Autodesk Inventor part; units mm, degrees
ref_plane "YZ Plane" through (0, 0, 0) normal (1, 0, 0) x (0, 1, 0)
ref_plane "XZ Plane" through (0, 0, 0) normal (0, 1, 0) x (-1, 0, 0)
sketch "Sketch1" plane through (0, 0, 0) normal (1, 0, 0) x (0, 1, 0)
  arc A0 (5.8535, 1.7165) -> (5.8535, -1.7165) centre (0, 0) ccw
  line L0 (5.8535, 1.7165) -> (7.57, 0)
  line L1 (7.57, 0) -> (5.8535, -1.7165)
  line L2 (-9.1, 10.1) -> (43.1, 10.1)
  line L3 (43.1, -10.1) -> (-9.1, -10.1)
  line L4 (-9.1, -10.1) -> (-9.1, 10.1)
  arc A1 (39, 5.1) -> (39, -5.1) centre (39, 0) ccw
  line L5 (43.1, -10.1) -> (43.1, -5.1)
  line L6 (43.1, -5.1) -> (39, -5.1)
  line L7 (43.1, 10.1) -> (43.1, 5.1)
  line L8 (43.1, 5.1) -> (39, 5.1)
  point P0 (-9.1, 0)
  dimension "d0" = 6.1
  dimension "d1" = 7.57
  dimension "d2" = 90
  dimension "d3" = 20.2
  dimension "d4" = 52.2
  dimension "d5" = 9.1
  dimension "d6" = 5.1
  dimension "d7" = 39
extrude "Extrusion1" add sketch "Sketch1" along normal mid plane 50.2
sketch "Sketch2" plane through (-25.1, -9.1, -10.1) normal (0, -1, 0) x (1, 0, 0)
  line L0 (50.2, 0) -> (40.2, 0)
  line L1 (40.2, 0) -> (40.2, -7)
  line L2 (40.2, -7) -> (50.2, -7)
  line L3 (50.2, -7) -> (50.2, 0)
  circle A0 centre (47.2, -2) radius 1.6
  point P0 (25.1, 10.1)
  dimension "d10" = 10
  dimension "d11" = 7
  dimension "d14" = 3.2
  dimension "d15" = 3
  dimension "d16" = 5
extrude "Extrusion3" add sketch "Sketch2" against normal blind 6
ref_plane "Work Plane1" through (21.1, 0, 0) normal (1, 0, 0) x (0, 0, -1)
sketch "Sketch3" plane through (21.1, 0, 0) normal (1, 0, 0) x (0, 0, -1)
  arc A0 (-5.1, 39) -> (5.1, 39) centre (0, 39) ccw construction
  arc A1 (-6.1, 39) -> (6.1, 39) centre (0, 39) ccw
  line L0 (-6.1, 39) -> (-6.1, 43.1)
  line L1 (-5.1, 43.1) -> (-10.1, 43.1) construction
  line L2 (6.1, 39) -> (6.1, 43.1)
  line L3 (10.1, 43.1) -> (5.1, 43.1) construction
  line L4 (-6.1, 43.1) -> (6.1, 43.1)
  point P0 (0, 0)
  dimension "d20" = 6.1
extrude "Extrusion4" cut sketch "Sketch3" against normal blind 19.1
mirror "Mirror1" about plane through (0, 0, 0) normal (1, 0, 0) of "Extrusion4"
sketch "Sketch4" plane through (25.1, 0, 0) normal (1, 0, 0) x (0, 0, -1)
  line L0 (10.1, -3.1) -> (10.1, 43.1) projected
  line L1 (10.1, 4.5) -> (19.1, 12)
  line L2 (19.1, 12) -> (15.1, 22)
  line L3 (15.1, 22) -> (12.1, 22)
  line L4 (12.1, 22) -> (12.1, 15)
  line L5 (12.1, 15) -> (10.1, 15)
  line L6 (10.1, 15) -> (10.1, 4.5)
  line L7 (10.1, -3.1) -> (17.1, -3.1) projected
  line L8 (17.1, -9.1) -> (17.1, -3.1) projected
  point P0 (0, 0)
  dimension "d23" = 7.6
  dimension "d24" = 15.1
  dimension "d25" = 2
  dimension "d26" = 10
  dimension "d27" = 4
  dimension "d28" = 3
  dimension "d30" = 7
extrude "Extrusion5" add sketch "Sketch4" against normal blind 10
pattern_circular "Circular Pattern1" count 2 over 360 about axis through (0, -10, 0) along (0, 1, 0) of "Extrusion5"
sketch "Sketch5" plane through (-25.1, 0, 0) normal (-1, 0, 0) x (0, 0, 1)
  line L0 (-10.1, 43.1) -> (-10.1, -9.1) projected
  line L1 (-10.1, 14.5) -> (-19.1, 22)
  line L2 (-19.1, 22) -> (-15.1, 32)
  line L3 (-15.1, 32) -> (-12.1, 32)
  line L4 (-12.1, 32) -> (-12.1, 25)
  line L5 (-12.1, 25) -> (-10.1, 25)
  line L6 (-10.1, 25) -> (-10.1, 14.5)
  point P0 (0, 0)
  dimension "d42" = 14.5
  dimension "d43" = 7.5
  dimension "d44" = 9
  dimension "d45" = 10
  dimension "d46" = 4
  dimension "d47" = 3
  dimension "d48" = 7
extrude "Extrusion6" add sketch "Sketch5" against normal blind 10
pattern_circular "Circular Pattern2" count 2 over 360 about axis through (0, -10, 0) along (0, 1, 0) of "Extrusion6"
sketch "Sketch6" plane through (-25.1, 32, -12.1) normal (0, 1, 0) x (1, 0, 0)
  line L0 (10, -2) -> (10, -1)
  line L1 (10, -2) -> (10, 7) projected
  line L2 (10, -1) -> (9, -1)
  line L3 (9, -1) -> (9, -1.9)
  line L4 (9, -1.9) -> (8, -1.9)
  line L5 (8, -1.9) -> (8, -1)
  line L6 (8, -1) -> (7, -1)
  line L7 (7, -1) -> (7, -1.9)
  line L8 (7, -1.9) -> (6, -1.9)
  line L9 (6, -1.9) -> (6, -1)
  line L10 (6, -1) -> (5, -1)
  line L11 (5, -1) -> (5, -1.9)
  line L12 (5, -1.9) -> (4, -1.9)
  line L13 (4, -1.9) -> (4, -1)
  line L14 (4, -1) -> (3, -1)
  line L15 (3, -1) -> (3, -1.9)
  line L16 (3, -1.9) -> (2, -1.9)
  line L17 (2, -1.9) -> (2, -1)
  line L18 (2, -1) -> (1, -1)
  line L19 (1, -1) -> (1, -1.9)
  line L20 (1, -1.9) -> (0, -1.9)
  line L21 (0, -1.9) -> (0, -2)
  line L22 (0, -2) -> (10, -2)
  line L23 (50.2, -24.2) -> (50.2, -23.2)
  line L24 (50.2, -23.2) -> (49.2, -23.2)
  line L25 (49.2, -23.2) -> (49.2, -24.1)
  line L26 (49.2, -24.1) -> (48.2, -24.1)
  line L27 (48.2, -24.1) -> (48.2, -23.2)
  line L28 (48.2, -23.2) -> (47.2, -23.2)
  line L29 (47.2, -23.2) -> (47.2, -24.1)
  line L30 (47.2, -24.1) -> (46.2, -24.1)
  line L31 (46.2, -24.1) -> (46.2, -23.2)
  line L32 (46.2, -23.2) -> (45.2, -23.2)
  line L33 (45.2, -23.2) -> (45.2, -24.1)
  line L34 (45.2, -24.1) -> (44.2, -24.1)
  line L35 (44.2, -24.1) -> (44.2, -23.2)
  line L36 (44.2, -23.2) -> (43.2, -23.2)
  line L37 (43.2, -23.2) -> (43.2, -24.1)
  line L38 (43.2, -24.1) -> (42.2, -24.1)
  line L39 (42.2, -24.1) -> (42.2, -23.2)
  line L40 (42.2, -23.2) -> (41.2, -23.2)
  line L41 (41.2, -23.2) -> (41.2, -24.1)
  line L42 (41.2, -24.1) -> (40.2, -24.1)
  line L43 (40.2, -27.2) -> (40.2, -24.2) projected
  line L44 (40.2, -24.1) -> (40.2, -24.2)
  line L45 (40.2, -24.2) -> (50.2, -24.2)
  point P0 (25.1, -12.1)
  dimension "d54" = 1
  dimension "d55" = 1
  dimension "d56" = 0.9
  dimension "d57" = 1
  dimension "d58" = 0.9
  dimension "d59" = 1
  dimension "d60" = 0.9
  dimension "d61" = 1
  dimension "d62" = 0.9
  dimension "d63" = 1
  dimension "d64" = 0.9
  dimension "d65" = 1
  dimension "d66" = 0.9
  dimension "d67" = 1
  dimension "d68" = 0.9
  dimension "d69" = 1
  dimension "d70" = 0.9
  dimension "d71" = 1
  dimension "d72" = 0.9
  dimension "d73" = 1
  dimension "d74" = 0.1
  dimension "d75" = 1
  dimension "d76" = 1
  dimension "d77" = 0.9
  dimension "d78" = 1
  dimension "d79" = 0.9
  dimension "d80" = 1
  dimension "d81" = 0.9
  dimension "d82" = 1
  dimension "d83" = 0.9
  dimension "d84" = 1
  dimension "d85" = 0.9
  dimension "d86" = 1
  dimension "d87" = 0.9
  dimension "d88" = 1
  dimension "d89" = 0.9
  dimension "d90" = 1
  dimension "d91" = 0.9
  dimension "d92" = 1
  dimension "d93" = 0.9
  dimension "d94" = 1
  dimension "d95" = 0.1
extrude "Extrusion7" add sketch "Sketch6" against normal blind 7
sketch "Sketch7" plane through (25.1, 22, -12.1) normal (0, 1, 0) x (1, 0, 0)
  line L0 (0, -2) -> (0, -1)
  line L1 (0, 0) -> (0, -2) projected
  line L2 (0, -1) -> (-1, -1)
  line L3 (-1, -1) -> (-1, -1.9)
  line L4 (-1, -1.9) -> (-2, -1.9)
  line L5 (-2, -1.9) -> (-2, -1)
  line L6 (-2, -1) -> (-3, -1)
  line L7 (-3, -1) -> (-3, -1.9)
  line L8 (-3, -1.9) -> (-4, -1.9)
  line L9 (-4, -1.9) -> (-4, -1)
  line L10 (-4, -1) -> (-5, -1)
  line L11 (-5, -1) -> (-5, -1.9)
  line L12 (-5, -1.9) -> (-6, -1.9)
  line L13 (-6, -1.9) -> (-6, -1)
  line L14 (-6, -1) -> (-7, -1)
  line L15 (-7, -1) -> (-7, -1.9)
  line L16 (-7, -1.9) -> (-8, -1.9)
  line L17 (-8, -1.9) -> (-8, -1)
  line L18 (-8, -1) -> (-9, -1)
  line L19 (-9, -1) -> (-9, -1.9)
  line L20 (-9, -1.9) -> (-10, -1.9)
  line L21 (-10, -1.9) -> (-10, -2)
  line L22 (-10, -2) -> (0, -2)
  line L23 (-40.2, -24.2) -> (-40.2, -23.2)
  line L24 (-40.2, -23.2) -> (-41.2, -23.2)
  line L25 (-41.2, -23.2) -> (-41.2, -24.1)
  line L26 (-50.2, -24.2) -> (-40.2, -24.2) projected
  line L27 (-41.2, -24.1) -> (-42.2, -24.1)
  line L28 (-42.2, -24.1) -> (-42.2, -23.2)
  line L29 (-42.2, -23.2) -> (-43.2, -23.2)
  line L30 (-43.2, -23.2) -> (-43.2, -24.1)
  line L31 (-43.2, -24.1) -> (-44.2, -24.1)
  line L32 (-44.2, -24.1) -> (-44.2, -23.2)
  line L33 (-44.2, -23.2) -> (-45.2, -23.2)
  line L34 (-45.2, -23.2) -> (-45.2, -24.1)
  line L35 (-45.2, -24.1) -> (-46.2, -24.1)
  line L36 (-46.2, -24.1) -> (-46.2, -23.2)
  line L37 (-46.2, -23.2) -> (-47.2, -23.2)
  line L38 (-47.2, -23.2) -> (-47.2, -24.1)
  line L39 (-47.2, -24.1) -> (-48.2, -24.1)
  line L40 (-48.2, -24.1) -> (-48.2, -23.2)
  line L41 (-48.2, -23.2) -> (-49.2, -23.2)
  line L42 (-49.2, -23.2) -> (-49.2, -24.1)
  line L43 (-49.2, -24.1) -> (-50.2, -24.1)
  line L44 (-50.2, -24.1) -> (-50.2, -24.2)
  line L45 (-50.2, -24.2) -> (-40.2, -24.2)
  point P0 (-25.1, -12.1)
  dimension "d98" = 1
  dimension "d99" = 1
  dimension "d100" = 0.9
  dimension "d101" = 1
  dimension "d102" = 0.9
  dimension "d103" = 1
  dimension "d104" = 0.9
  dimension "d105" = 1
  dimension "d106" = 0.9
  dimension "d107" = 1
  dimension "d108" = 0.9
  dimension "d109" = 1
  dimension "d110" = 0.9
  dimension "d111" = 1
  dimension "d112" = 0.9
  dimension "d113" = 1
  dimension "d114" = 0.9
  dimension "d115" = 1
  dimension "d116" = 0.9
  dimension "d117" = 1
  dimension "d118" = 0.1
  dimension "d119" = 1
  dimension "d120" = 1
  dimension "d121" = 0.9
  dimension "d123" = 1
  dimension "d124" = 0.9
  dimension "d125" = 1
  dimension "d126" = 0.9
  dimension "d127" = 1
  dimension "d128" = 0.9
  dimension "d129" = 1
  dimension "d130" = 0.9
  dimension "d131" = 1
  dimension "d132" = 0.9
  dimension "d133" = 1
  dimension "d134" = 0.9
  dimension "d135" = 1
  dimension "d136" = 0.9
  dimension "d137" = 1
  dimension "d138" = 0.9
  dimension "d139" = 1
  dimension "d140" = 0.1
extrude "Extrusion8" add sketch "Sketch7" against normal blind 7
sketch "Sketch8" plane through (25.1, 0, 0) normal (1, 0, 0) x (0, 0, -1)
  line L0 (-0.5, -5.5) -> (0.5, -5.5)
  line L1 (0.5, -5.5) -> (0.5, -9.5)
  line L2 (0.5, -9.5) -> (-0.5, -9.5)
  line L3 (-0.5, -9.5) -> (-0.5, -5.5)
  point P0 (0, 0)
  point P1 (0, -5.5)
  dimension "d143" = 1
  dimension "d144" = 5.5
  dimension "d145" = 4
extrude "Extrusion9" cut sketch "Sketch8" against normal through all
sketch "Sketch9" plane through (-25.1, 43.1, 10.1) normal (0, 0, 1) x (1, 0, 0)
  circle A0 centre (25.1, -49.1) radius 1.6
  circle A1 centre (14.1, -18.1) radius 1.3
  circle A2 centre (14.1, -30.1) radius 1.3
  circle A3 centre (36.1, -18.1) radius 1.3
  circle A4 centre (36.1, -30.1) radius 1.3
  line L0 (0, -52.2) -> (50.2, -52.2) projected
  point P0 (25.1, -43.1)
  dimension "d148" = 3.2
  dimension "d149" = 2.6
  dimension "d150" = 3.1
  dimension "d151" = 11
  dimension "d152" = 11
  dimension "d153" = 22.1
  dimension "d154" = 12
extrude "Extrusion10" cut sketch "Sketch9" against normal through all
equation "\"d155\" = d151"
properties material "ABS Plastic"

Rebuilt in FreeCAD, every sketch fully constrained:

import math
import FreeCAD as App
import Part
import Sketcher

V = App.Vector
Q = App.Units.Quantity


def add_polygon(sketch, points):
    """Adds a closed chain of lines whose ends are joined by coincident constraints."""
    first, n = sketch.GeometryCount, len(points)
    for a, b in zip(points, points[1:] + points[:1]):
        sketch.addGeometry(Part.LineSegment(App.Vector(*a, 0), App.Vector(*b, 0)), False)
    for i in range(n):
        sketch.addConstraint(Sketcher.Constraint("Coincident", first + i, 2, first + (i + 1) % n, 1))

doc = App.newDocument("Part")
body = doc.addObject("PartDesign::Body", "Body")

# Sketch on YZ plane
sketch1 = doc.addObject("Sketcher::SketchObject", "Sketch")
body.addObject(sketch1)
sketch1.AttachmentSupport = (doc.YZ_Plane, [""])
sketch1.MapMode = "FlatFace"
sketch1.addGeometry([
    Part.LineSegment(V(43.1, 10.1, 0), V(-9.1, 10.1, 0)),  # 0
    Part.LineSegment(V(-9.1, 10.1, 0), V(-9.1, -10.1, 0)),  # 1
    Part.LineSegment(V(-9.1, -10.1, 0), V(43.1, -10.1, 0)),  # 2
    Part.LineSegment(V(43.1, -10.1, 0), V(43.1, -5.1, 0)),  # 3
    Part.LineSegment(V(43.1, -5.1, 0), V(39, -5.1, 0)),  # 4
    Part.ArcOfCircle(Part.Circle(V(39, 0, 0), V(0, 0, 1), 5.1), math.radians(90), math.radians(270)),  # 5
    Part.LineSegment(V(39, 5.1, 0), V(43.1, 5.1, 0)),  # 6
    Part.LineSegment(V(43.1, 5.1, 0), V(43.1, 10.1, 0)),  # 7
    Part.ArcOfCircle(Part.Circle(V(0, 0, 0), V(0, 0, 1), 6.1), math.radians(16), math.radians(344)),  # 8
    Part.LineSegment(V(5.9, 1.7, 0), V(7.6, 0, 0)),  # 9
    Part.LineSegment(V(7.6, 0, 0), V(5.9, -1.7, 0)),  # 10
], False)
sketch1.addConstraint([
    Sketcher.Constraint("Coincident", 0, 2, 1, 1),
    Sketcher.Constraint("Coincident", 1, 2, 2, 1),
    Sketcher.Constraint("Coincident", 2, 2, 3, 1),
    Sketcher.Constraint("Coincident", 3, 2, 4, 1),
    Sketcher.Constraint("Tangent", 4, 2, 5, 2),
    Sketcher.Constraint("Tangent", 5, 1, 6, 1),
    Sketcher.Constraint("Coincident", 6, 2, 7, 1),
    Sketcher.Constraint("Coincident", 7, 2, 0, 1),
    Sketcher.Constraint("Coincident", 8, 1, 9, 1),
    Sketcher.Constraint("Coincident", 9, 2, 10, 1),
    Sketcher.Constraint("Coincident", 10, 2, 8, 2),
    Sketcher.Constraint("Horizontal", 0),
    Sketcher.Constraint("Vertical", 1),
    Sketcher.Constraint("Horizontal", 2),
    Sketcher.Constraint("Vertical", 3),
    Sketcher.Constraint("Horizontal", 4),
    Sketcher.Constraint("Horizontal", 6),
    Sketcher.Constraint("Vertical", 7),
    Sketcher.Constraint("Coincident", 8, 3, -1, 1),
    Sketcher.Constraint("Symmetric", 3, 2, 6, 2, -1),
    Sketcher.Constraint("PointOnObject", 9, 2, -1),
    Sketcher.Constraint("Perpendicular", 9, 10),
    Sketcher.Constraint("Vertical", 8, 1, 10, 2),
    Sketcher.Constraint("Equal", 3, 7),
    Sketcher.Constraint("Radius", 5, Q("5.1 mm")),
    Sketcher.Constraint("Radius", 8, Q("6.1 mm")),
    Sketcher.Constraint("DistanceX", 0, 2, 0, 1, Q("52.2 mm")),
    Sketcher.Constraint("DistanceY", 1, 2, 1, 1, Q("20.2 mm")),
    Sketcher.Constraint("DistanceX", -1, 1, 5, 3, Q("39 mm")),
    Sketcher.Constraint("DistanceX", 0, 2, -1, 1, Q("9.1 mm")),
    Sketcher.Constraint("DistanceX", -1, 1, 9, 2, Q("7.57 mm")),
])
pad1 = doc.addObject("PartDesign::Pad", "Pad")
body.addObject(pad1)
pad1.Profile = sketch1
pad1.Length = 50.2
pad1.Midplane = True

# Sketch on XZ plane
sketch2 = doc.addObject("Sketcher::SketchObject", "Sketch001")
body.addObject(sketch2)
sketch2.AttachmentSupport = (doc.XZ_Plane, [""])
sketch2.MapMode = "FlatFace"
sketch2.AttachmentOffset = App.Placement(V(0, 0, 9.1), App.Rotation())
add_polygon(sketch2, [(25.1, -17.1), (25.1, -10.1), (15.1, -10.1), (15.1, -17.1)])  # lines 0-3
sketch2.addGeometry(Part.Circle(V(22.1, -12.1, 0), V(0, 0, 1), 1.6), False)  # 4
sketch2.addConstraint([
    Sketcher.Constraint("Vertical", 0),
    Sketcher.Constraint("Horizontal", 1),
    Sketcher.Constraint("Vertical", 2),
    Sketcher.Constraint("Horizontal", 3),
    Sketcher.Constraint("Diameter", 4, Q("3.2 mm")),
    Sketcher.Constraint("DistanceX", 1, 2, 1, 1, Q("10 mm")),
    Sketcher.Constraint("DistanceY", 0, 1, 0, 2, Q("7 mm")),
    Sketcher.Constraint("DistanceX", 4, 3, 0, 2, Q("3 mm")),
    Sketcher.Constraint("DistanceY", 2, 2, 4, 3, Q("5 mm")),
    Sketcher.Constraint("DistanceX", -1, 1, 4, 3, Q("22.1 mm")),
    Sketcher.Constraint("DistanceY", 4, 3, -1, 1, Q("12.1 mm")),
])
pad2 = doc.addObject("PartDesign::Pad", "Pad001")
body.addObject(pad2)
pad2.Profile = sketch2
pad2.Length = 6
pad2.Reversed = True

# Sketch on YZ plane
sketch3 = doc.addObject("Sketcher::SketchObject", "Sketch002")
body.addObject(sketch3)
sketch3.AttachmentSupport = (doc.YZ_Plane, [""])
sketch3.MapMode = "FlatFace"
sketch3.AttachmentOffset = App.Placement(V(0, 0, 21.1), App.Rotation())
sketch3.addGeometry([
    Part.LineSegment(V(43.1, 6.1, 0), V(39, 6.1, 0)),
    Part.ArcOfCircle(Part.Circle(V(39, 0, 0), V(0, 0, 1), 6.1), math.radians(90), math.radians(270)),
    Part.LineSegment(V(39, -6.1, 0), V(43.1, -6.1, 0)),
    Part.LineSegment(V(43.1, -6.1, 0), V(43.1, 6.1, 0)),
], False)
sketch3.addConstraint([
    Sketcher.Constraint("Tangent", 0, 2, 1, 1),
    Sketcher.Constraint("Tangent", 1, 2, 2, 1),
    Sketcher.Constraint("Coincident", 2, 2, 3, 1),
    Sketcher.Constraint("Coincident", 3, 2, 0, 1),
    Sketcher.Constraint("Horizontal", 0),
    Sketcher.Constraint("Horizontal", 2),
    Sketcher.Constraint("Vertical", 3),
    Sketcher.Constraint("PointOnObject", 1, 3, -1),
    Sketcher.Constraint("Radius", 1, Q("6.1 mm")),
    Sketcher.Constraint("DistanceX", 0, 2, 0, 1, Q("4.1 mm")),
    Sketcher.Constraint("DistanceX", -1, 1, 1, 3, Q("39 mm")),
])
pocket1 = doc.addObject("PartDesign::Pocket", "Pocket")
body.addObject(pocket1)
pocket1.Profile = sketch3
pocket1.Length = 19.1
doc.recompute()

mirrored = doc.addObject("PartDesign::Mirrored", "Mirrored")
body.addObject(mirrored)
mirrored.Originals = [pocket1]
mirrored.MirrorPlane = (doc.YZ_Plane, [""])
body.Tip = mirrored

# Sketch on YZ plane
sketch4 = doc.addObject("Sketcher::SketchObject", "Sketch003")
body.addObject(sketch4)
sketch4.AttachmentSupport = (doc.YZ_Plane, [""])
sketch4.MapMode = "FlatFace"
sketch4.AttachmentOffset = App.Placement(V(0, 0, 25.1), App.Rotation())
add_polygon(sketch4, [(15, -10.1), (4.5, -10.1), (12, -19.1), (22, -15.1), (22, -12.1), (15, -12.1)])  # lines 0-5
sketch4.addConstraint([
    Sketcher.Constraint("Horizontal", 0),
    Sketcher.Constraint("Vertical", 3),
    Sketcher.Constraint("Horizontal", 4),
    Sketcher.Constraint("Vertical", 5),
    Sketcher.Constraint("DistanceX", 4, 2, 4, 1, Q("7 mm")),
    Sketcher.Constraint("DistanceY", 3, 1, 3, 2, Q("3 mm")),
    Sketcher.Constraint("DistanceY", 5, 1, 5, 2, Q("2 mm")),
    Sketcher.Constraint("DistanceX", 1, 2, 2, 2, Q("10 mm")),
    Sketcher.Constraint("DistanceY", 1, 2, 2, 2, Q("4 mm")),
    Sketcher.Constraint("DistanceY", 2, 2, -1, 1, Q("15.1 mm")),
    Sketcher.Constraint("DistanceX", 0, 2, 0, 1, Q("10.5 mm")),
    Sketcher.Constraint("DistanceX", -1, 1, 1, 2, Q("12 mm")),
])
pad3 = doc.addObject("PartDesign::Pad", "Pad002")
body.addObject(pad3)
pad3.Profile = sketch4
pad3.Length = 10
pad3.Reversed = True
doc.recompute()

polarpattern = doc.addObject("PartDesign::PolarPattern", "PolarPattern")
body.addObject(polarpattern)
polarpattern.Originals = [pad3]
polarpattern.Axis = (doc.Y_Axis, [""])
polarpattern.Angle = 360
polarpattern.Occurrences = 2
body.Tip = polarpattern

# Sketch on YZ plane
sketch5 = doc.addObject("Sketcher::SketchObject", "Sketch004")
body.addObject(sketch5)
sketch5.AttachmentSupport = (doc.YZ_Plane, [""])
sketch5.MapMode = "FlatFace"
sketch5.AttachmentOffset = App.Placement(V(0, 0, -25.1), App.Rotation())
add_polygon(sketch5, [(14.5, -10.1), (25, -10.1), (25, -12.1), (32, -12.1), (32, -15.1), (22, -19.1)])  # lines 0-5
sketch5.addConstraint([
    Sketcher.Constraint("Horizontal", 0),
    Sketcher.Constraint("Vertical", 1),
    Sketcher.Constraint("Horizontal", 2),
    Sketcher.Constraint("Vertical", 3),
    Sketcher.Constraint("DistanceX", 2, 1, 2, 2, Q("7 mm")),
    Sketcher.Constraint("DistanceY", 3, 2, 3, 1, Q("3 mm")),
    Sketcher.Constraint("DistanceX", 4, 2, 1, 2, Q("3 mm")),
    Sketcher.Constraint("DistanceY", 4, 2, 1, 2, Q("7 mm")),
    Sketcher.Constraint("DistanceY", 4, 2, 0, 2, Q("9 mm")),
    Sketcher.Constraint("DistanceX", -1, 1, 5, 2, Q("14.5 mm")),
    Sketcher.Constraint("DistanceX", 5, 2, 4, 2, Q("7.5 mm")),
    Sketcher.Constraint("DistanceY", 0, 2, -1, 1, Q("10.1 mm")),
])
pad4 = doc.addObject("PartDesign::Pad", "Pad003")
body.addObject(pad4)
pad4.Profile = sketch5
pad4.Length = 10
doc.recompute()

polarpattern2 = doc.addObject("PartDesign::PolarPattern", "PolarPattern001")
body.addObject(polarpattern2)
polarpattern2.Originals = [pad4]
polarpattern2.Axis = (doc.Y_Axis, [""])
polarpattern2.Angle = 360
polarpattern2.Occurrences = 2
body.Tip = polarpattern2

# Sketch on XZ plane
sketch6 = doc.addObject("Sketcher::SketchObject", "Sketch005")
body.addObject(sketch6)
sketch6.AttachmentSupport = (doc.XZ_Plane, [""])
sketch6.MapMode = "FlatFace"
sketch6.AttachmentOffset = App.Placement(V(0, 0, -32), App.Rotation())
add_polygon(sketch6, [(-25.1, -10.1), (-15.1, -10.1), (-15.1, -11.1), (-16.1, -11.1), (-16.1, -10.2), (-17.1, -10.2), (-17.1, -11.1), (-18.1, -11.1), (-18.1, -10.2), (-19.1, -10.2), (-19.1, -11.1), (-20.1, -11.1), (-20.1, -10.2), (-21.1, -10.2), (-21.1, -11.1), (-22.1, -11.1), (-22.1, -10.2), (-23.1, -10.2), (-23.1, -11.1), (-24.1, -11.1), (-24.1, -10.2), (-25.1, -10.2)])  # lines 0-21
add_polygon(sketch6, [(15.1, 12.1), (25.1, 12.1), (25.1, 11.1), (24.1, 11.1), (24.1, 12), (23.1, 12), (23.1, 11.1), (22.1, 11.1), (22.1, 12), (21.1, 12), (21.1, 11.1), (20.1, 11.1), (20.1, 12), (19.1, 12), (19.1, 11.1), (18.1, 11.1), (18.1, 12), (17.1, 12), (17.1, 11.1), (16.1, 11.1), (16.1, 12), (15.1, 12)])  # lines 22-43
sketch6.addConstraint([
    Sketcher.Constraint("Horizontal", 0),
    Sketcher.Constraint("Vertical", 1),
    Sketcher.Constraint("Horizontal", 2),
    Sketcher.Constraint("Vertical", 3),
    Sketcher.Constraint("Horizontal", 4),
    Sketcher.Constraint("Vertical", 5),
    Sketcher.Constraint("Horizontal", 6),
    Sketcher.Constraint("Vertical", 7),
    Sketcher.Constraint("Horizontal", 8),
    Sketcher.Constraint("Vertical", 9),
    Sketcher.Constraint("Horizontal", 10),
    Sketcher.Constraint("Vertical", 11),
    Sketcher.Constraint("Horizontal", 12),
    Sketcher.Constraint("Vertical", 13),
    Sketcher.Constraint("Horizontal", 14),
    Sketcher.Constraint("Vertical", 15),
    Sketcher.Constraint("Horizontal", 16),
    Sketcher.Constraint("Vertical", 17),
    Sketcher.Constraint("Horizontal", 18),
    Sketcher.Constraint("Vertical", 19),
    Sketcher.Constraint("Horizontal", 20),
    Sketcher.Constraint("Vertical", 21),
    Sketcher.Constraint("Horizontal", 22),
    Sketcher.Constraint("Vertical", 23),
    Sketcher.Constraint("Horizontal", 24),
    Sketcher.Constraint("Vertical", 25),
    Sketcher.Constraint("Horizontal", 26),
    Sketcher.Constraint("Vertical", 27),
    Sketcher.Constraint("Horizontal", 28),
    Sketcher.Constraint("Vertical", 29),
    Sketcher.Constraint("Horizontal", 30),
    Sketcher.Constraint("Vertical", 31),
    Sketcher.Constraint("Horizontal", 32),
    Sketcher.Constraint("Vertical", 33),
    Sketcher.Constraint("Horizontal", 34),
    Sketcher.Constraint("Vertical", 35),
    Sketcher.Constraint("Horizontal", 36),
    Sketcher.Constraint("Vertical", 37),
    Sketcher.Constraint("Horizontal", 38),
    Sketcher.Constraint("Vertical", 39),
    Sketcher.Constraint("Horizontal", 40),
    Sketcher.Constraint("Vertical", 41),
    Sketcher.Constraint("Horizontal", 42),
    Sketcher.Constraint("Vertical", 43),
    Sketcher.Constraint("Symmetric", 18, 2, 24, 2, -1, 1),
    Sketcher.Constraint("Symmetric", 17, 2, 27, 2, -1, 1),
    Sketcher.Constraint("Symmetric", 14, 2, 28, 2, -1, 1),
    Sketcher.Constraint("Symmetric", 13, 2, 31, 2, -1, 1),
    Sketcher.Constraint("Symmetric", 10, 2, 32, 2, -1, 1),
    Sketcher.Constraint("Symmetric", 9, 2, 35, 2, -1, 1),
    Sketcher.Constraint("Symmetric", 6, 2, 36, 2, -1, 1),
    Sketcher.Constraint("Symmetric", 5, 2, 39, 2, -1, 1),
    Sketcher.Constraint("Symmetric", 2, 2, 40, 2, -1, 1),
    Sketcher.Constraint("Horizontal", 4, 2, 7, 2),
    Sketcher.Constraint("Horizontal", 8, 2, 11, 2),
    Sketcher.Constraint("Horizontal", 12, 2, 15, 2),
    Sketcher.Constraint("Horizontal", 16, 2, 19, 2),
    Sketcher.Constraint("Horizontal", 26, 2, 29, 2),
    Sketcher.Constraint("Horizontal", 30, 2, 33, 2),
    Sketcher.Constraint("Horizontal", 34, 2, 37, 2),
    Sketcher.Constraint("Horizontal", 38, 2, 41, 2),
    Sketcher.Constraint("Equal", 2, 4),
    Sketcher.Constraint("Equal", 4, 6),
    Sketcher.Constraint("Equal", 6, 8),
    Sketcher.Constraint("Equal", 8, 10),
    Sketcher.Constraint("Equal", 10, 12),
    Sketcher.Constraint("Equal", 12, 14),
    Sketcher.Constraint("Equal", 14, 16),
    Sketcher.Constraint("Equal", 16, 18),
    Sketcher.Constraint("Equal", 18, 20),
    Sketcher.Constraint("Equal", 0, 22),
    Sketcher.Constraint("Equal", 20, 24),
    Sketcher.Constraint("Equal", 42, 1),
    Sketcher.Constraint("Equal", 1, 23),
    Sketcher.Constraint("Equal", 19, 25),
    Sketcher.Constraint("DistanceX", 2, 2, 2, 1, Q("1 mm")),
    Sketcher.Constraint("DistanceY", 3, 1, 3, 2, Q("0.9 mm")),
    Sketcher.Constraint("DistanceY", -1, 1, 25, 2, Q("12 mm")),
    Sketcher.Constraint("DistanceX", 0, 2, -1, 1, Q("15.1 mm")),
])
pad5 = doc.addObject("PartDesign::Pad", "Pad004")
body.addObject(pad5)
pad5.Profile = sketch6
pad5.Length = 7

# Sketch on XZ plane
sketch7 = doc.addObject("Sketcher::SketchObject", "Sketch006")
body.addObject(sketch7)
sketch7.AttachmentSupport = (doc.XZ_Plane, [""])
sketch7.MapMode = "FlatFace"
sketch7.AttachmentOffset = App.Placement(V(0, 0, -22), App.Rotation())
add_polygon(sketch7, [(15.1, -10.1), (25.1, -10.1), (25.1, -11.1), (24.1, -11.1), (24.1, -10.2), (23.1, -10.2), (23.1, -11.1), (22.1, -11.1), (22.1, -10.2), (21.1, -10.2), (21.1, -11.1), (20.1, -11.1), (20.1, -10.2), (19.1, -10.2), (19.1, -11.1), (18.1, -11.1), (18.1, -10.2), (17.1, -10.2), (17.1, -11.1), (16.1, -11.1), (16.1, -10.2), (15.1, -10.2)])  # lines 0-21
add_polygon(sketch7, [(-25.1, 12.1), (-15.1, 12.1), (-15.1, 11.1), (-16.1, 11.1), (-16.1, 12), (-17.1, 12), (-17.1, 11.1), (-18.1, 11.1), (-18.1, 12), (-19.1, 12), (-19.1, 11.1), (-20.1, 11.1), (-20.1, 12), (-21.1, 12), (-21.1, 11.1), (-22.1, 11.1), (-22.1, 12), (-23.1, 12), (-23.1, 11.1), (-24.1, 11.1), (-24.1, 12), (-25.1, 12)])  # lines 22-43
sketch7.addConstraint([
    Sketcher.Constraint("Horizontal", 0),
    Sketcher.Constraint("Vertical", 1),
    Sketcher.Constraint("Horizontal", 2),
    Sketcher.Constraint("Vertical", 3),
    Sketcher.Constraint("Horizontal", 4),
    Sketcher.Constraint("Vertical", 5),
    Sketcher.Constraint("Horizontal", 6),
    Sketcher.Constraint("Vertical", 7),
    Sketcher.Constraint("Horizontal", 8),
    Sketcher.Constraint("Vertical", 9),
    Sketcher.Constraint("Horizontal", 10),
    Sketcher.Constraint("Vertical", 11),
    Sketcher.Constraint("Horizontal", 12),
    Sketcher.Constraint("Vertical", 13),
    Sketcher.Constraint("Horizontal", 14),
    Sketcher.Constraint("Vertical", 15),
    Sketcher.Constraint("Horizontal", 16),
    Sketcher.Constraint("Vertical", 17),
    Sketcher.Constraint("Horizontal", 18),
    Sketcher.Constraint("Vertical", 19),
    Sketcher.Constraint("Horizontal", 20),
    Sketcher.Constraint("Vertical", 21),
    Sketcher.Constraint("Horizontal", 22),
    Sketcher.Constraint("Vertical", 23),
    Sketcher.Constraint("Horizontal", 24),
    Sketcher.Constraint("Vertical", 25),
    Sketcher.Constraint("Horizontal", 26),
    Sketcher.Constraint("Vertical", 27),
    Sketcher.Constraint("Horizontal", 28),
    Sketcher.Constraint("Vertical", 29),
    Sketcher.Constraint("Horizontal", 30),
    Sketcher.Constraint("Vertical", 31),
    Sketcher.Constraint("Horizontal", 32),
    Sketcher.Constraint("Vertical", 33),
    Sketcher.Constraint("Horizontal", 34),
    Sketcher.Constraint("Vertical", 35),
    Sketcher.Constraint("Horizontal", 36),
    Sketcher.Constraint("Vertical", 37),
    Sketcher.Constraint("Horizontal", 38),
    Sketcher.Constraint("Vertical", 39),
    Sketcher.Constraint("Horizontal", 40),
    Sketcher.Constraint("Vertical", 41),
    Sketcher.Constraint("Horizontal", 42),
    Sketcher.Constraint("Vertical", 43),
    Sketcher.Constraint("Symmetric", 18, 2, 24, 2, -1, 1),
    Sketcher.Constraint("Symmetric", 17, 2, 27, 2, -1, 1),
    Sketcher.Constraint("Symmetric", 14, 2, 28, 2, -1, 1),
    Sketcher.Constraint("Symmetric", 13, 2, 31, 2, -1, 1),
    Sketcher.Constraint("Symmetric", 10, 2, 32, 2, -1, 1),
    Sketcher.Constraint("Symmetric", 9, 2, 35, 2, -1, 1),
    Sketcher.Constraint("Symmetric", 6, 2, 36, 2, -1, 1),
    Sketcher.Constraint("Symmetric", 5, 2, 39, 2, -1, 1),
    Sketcher.Constraint("Symmetric", 2, 2, 40, 2, -1, 1),
    Sketcher.Constraint("Horizontal", 4, 2, 7, 2),
    Sketcher.Constraint("Horizontal", 8, 2, 11, 2),
    Sketcher.Constraint("Horizontal", 12, 2, 15, 2),
    Sketcher.Constraint("Horizontal", 16, 2, 19, 2),
    Sketcher.Constraint("Horizontal", 26, 2, 29, 2),
    Sketcher.Constraint("Horizontal", 30, 2, 33, 2),
    Sketcher.Constraint("Horizontal", 34, 2, 37, 2),
    Sketcher.Constraint("Horizontal", 38, 2, 41, 2),
    Sketcher.Constraint("Equal", 2, 4),
    Sketcher.Constraint("Equal", 4, 6),
    Sketcher.Constraint("Equal", 6, 8),
    Sketcher.Constraint("Equal", 8, 10),
    Sketcher.Constraint("Equal", 10, 12),
    Sketcher.Constraint("Equal", 12, 14),
    Sketcher.Constraint("Equal", 14, 16),
    Sketcher.Constraint("Equal", 16, 18),
    Sketcher.Constraint("Equal", 18, 20),
    Sketcher.Constraint("Equal", 0, 22),
    Sketcher.Constraint("Equal", 20, 24),
    Sketcher.Constraint("Equal", 42, 1),
    Sketcher.Constraint("Equal", 1, 23),
    Sketcher.Constraint("Equal", 19, 25),
    Sketcher.Constraint("DistanceX", 2, 2, 2, 1, Q("1 mm")),
    Sketcher.Constraint("DistanceY", 3, 1, 3, 2, Q("0.9 mm")),
    Sketcher.Constraint("DistanceY", -1, 1, 25, 2, Q("12 mm")),
    Sketcher.Constraint("DistanceX", -1, 1, 0, 2, Q("25.1 mm")),
])
pad6 = doc.addObject("PartDesign::Pad", "Pad005")
body.addObject(pad6)
pad6.Profile = sketch7
pad6.Length = 7

# Sketch on YZ plane
sketch8 = doc.addObject("Sketcher::SketchObject", "Sketch007")
body.addObject(sketch8)
sketch8.AttachmentSupport = (doc.YZ_Plane, [""])
sketch8.MapMode = "FlatFace"
sketch8.AttachmentOffset = App.Placement(V(0, 0, 25.1), App.Rotation())
add_polygon(sketch8, [(-5.5, -0.5), (-5.5, 0.5), (-9.5, 0.5), (-9.5, -0.5)])  # lines 0-3
sketch8.addConstraint([
    Sketcher.Constraint("Vertical", 0),
    Sketcher.Constraint("Horizontal", 1),
    Sketcher.Constraint("Vertical", 2),
    Sketcher.Constraint("Horizontal", 3),
    Sketcher.Constraint("DistanceX", 1, 2, 1, 1, Q("4 mm")),
    Sketcher.Constraint("DistanceY", 0, 1, 0, 2, Q("1 mm")),
    Sketcher.Constraint("DistanceX", 0, 2, -1, 1, Q("5.5 mm")),
    Sketcher.Constraint("DistanceY", -1, 1, 0, 2, Q("0.5 mm")),
])
pocket2 = doc.addObject("PartDesign::Pocket", "Pocket001")
body.addObject(pocket2)
pocket2.Profile = sketch8
pocket2.Type = "ThroughAll"

# Sketch on XY plane
sketch9 = doc.addObject("Sketcher::SketchObject", "Sketch008")
body.addObject(sketch9)
sketch9.AttachmentSupport = (doc.XY_Plane, [""])
sketch9.MapMode = "FlatFace"
sketch9.AttachmentOffset = App.Placement(V(0, 0, 10.1), App.Rotation())
sketch9.addGeometry([
    Part.Circle(V(0, -6, 0), V(0, 0, 1), 1.6),  # 0
    Part.Circle(V(-11, 25, 0), V(0, 0, 1), 1.3),  # 1
    Part.Circle(V(-11, 13, 0), V(0, 0, 1), 1.3),  # 2
    Part.Circle(V(11, 25, 0), V(0, 0, 1), 1.3),  # 3
    Part.Circle(V(11, 13, 0), V(0, 0, 1), 1.3),  # 4
], False)
sketch9.addConstraint([
    Sketcher.Constraint("Equal", 1, 2),
    Sketcher.Constraint("Equal", 2, 3),
    Sketcher.Constraint("Equal", 3, 4),
    Sketcher.Constraint("Symmetric", 1, 3, 3, 3, -2),
    Sketcher.Constraint("Symmetric", 2, 3, 4, 3, -2),
    Sketcher.Constraint("PointOnObject", 0, 3, -2),
    Sketcher.Constraint("Vertical", 1, 3, 2, 3),
    Sketcher.Constraint("Diameter", 0, Q("3.2 mm")),
    Sketcher.Constraint("Diameter", 1, Q("2.6 mm")),
    Sketcher.Constraint("DistanceX", 1, 3, -1, 1, Q("11 mm")),
    Sketcher.Constraint("DistanceY", 2, 3, 1, 3, Q("12 mm")),
    Sketcher.Constraint("DistanceY", 0, 3, -1, 1, Q("6 mm")),
    Sketcher.Constraint("DistanceY", -1, 1, 1, 3, Q("25 mm")),
])
pocket3 = doc.addObject("PartDesign::Pocket", "Pocket002")
body.addObject(pocket3)
pocket3.Profile = sketch9
pocket3.Type = "ThroughAll"

doc.recompute()
